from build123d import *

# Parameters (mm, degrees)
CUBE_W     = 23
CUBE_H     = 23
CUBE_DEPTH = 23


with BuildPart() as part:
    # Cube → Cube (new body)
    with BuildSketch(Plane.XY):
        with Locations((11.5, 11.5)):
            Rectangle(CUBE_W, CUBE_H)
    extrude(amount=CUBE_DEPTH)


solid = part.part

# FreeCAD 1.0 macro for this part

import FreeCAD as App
import Part
import Sketcher
from FreeCAD import Vector

doc = App.newDocument("Part")
body = doc.addObject("PartDesign::Body", "Body")

# Sketch on XY plane
sketch1 = body.newObject("Sketcher::SketchObject", "Sketch")
sketch1.AttachmentSupport = (doc.getObject("XY_Plane"), [""])
sketch1.MapMode = "FlatFace"
sketch1.addGeometry(Part.LineSegment(Vector(0, 23, 0), Vector(0, 0, 0)), False)
sketch1.addGeometry(Part.LineSegment(Vector(0, 0, 0), Vector(23, 0, 0)), False)
sketch1.addGeometry(Part.LineSegment(Vector(23, 0, 0), Vector(23, 23, 0)), False)
sketch1.addGeometry(Part.LineSegment(Vector(23, 23, 0), Vector(0, 23, 0)), False)
sketch1.addConstraint(Sketcher.Constraint("Coincident", 0, 2, 1, 1))
sketch1.addConstraint(Sketcher.Constraint("Coincident", 1, 2, 2, 1))
sketch1.addConstraint(Sketcher.Constraint("Coincident", 2, 2, 3, 1))
sketch1.addConstraint(Sketcher.Constraint("Coincident", 3, 2, 0, 1))
sketch1.addConstraint(Sketcher.Constraint("Vertical", 0))
sketch1.addConstraint(Sketcher.Constraint("Horizontal", 1))
sketch1.addConstraint(Sketcher.Constraint("Vertical", 2))
sketch1.addConstraint(Sketcher.Constraint("Horizontal", 3))
sketch1.addConstraint(Sketcher.Constraint("Coincident", 0, 2, -1, 1))
sketch1.addConstraint(Sketcher.Constraint("Equal", 3, 0))
sketch1.addConstraint(Sketcher.Constraint("DistanceX", 1, 1, 1, 2, 23.0))
pad1 = body.newObject("PartDesign::Pad", "Pad")
pad1.Profile = sketch1
pad1.Length = 23

doc.recompute()
